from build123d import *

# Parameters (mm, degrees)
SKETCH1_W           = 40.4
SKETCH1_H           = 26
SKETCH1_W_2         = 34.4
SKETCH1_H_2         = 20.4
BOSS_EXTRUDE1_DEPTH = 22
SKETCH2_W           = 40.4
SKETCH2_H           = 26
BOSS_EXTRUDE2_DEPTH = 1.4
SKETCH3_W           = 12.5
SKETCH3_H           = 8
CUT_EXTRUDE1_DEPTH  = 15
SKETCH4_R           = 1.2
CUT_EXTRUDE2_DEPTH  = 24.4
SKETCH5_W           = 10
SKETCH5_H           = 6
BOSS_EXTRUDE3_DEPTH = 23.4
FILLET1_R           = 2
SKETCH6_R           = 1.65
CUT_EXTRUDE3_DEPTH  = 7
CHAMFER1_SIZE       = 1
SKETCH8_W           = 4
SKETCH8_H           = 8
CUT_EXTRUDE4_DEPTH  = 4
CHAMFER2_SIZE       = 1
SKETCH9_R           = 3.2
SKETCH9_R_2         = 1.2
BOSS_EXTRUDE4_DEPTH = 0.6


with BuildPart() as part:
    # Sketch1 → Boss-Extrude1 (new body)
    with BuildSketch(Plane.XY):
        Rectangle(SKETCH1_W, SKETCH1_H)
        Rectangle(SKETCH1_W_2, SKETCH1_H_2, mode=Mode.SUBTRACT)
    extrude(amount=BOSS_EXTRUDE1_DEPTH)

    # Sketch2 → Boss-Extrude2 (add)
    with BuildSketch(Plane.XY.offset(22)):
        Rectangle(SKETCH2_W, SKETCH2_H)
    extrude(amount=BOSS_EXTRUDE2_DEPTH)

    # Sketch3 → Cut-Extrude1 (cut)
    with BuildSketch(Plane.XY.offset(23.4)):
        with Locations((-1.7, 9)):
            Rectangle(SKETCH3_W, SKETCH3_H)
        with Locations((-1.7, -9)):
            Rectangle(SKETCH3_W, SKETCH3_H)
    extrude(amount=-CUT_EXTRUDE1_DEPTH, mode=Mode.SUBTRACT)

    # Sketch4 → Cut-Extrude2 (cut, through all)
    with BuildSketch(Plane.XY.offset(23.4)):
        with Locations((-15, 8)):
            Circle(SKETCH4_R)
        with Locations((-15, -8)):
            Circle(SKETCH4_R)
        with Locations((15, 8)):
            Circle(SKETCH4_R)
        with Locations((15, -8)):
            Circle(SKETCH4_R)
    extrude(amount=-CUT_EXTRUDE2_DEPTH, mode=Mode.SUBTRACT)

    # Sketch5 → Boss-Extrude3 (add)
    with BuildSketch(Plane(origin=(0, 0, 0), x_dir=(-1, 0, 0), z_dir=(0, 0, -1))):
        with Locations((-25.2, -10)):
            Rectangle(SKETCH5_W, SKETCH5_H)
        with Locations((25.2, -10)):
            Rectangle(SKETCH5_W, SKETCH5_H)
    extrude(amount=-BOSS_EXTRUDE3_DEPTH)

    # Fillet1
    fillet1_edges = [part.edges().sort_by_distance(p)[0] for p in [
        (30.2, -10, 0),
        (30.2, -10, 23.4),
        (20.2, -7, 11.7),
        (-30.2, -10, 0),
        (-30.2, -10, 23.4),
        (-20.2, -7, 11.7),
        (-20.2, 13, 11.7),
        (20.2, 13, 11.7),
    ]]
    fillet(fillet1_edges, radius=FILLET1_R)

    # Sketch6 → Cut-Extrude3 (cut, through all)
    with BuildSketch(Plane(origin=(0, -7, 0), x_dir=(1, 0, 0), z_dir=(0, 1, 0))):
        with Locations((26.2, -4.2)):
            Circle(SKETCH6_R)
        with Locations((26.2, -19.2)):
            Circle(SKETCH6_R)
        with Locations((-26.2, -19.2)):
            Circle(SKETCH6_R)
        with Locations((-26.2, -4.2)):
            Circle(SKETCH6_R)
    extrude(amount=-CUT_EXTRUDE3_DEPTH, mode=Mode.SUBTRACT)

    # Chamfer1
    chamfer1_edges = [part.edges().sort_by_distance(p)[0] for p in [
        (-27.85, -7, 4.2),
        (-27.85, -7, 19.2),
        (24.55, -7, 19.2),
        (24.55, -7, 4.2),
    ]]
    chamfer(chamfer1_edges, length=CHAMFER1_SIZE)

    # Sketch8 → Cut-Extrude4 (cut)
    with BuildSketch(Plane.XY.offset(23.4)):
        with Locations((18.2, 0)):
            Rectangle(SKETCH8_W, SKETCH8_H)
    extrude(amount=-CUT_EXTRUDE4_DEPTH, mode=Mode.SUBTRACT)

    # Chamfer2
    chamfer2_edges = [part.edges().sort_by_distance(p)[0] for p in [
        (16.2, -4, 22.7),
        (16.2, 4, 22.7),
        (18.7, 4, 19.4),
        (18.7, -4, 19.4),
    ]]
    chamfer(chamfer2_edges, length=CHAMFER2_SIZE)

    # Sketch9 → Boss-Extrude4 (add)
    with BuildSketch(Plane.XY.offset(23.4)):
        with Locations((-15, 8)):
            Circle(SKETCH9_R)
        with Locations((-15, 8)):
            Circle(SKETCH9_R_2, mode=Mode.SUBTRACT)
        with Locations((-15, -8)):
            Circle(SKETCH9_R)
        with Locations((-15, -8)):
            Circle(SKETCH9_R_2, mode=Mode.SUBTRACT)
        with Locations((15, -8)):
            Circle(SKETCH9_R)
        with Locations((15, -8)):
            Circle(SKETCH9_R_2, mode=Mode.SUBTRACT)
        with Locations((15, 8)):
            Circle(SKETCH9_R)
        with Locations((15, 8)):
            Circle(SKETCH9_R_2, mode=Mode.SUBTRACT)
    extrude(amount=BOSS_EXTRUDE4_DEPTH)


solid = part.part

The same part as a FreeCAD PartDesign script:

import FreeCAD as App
import Part
import Sketcher

V = App.Vector


def edges_at(feature, points):
    """Names of the edges that pass closest to the given points."""
    edges = feature.Shape.Edges
    near = lambda p: min(range(len(edges)), key=lambda i: edges[i].distToShape(Part.Vertex(*p))[0])
    return sorted({f"Edge{near(p) + 1}" for p in points})


def add_polygon(sketch, points):
    """Adds a closed chain of lines whose ends are joined by coincident constraints."""
    first, n = sketch.GeometryCount, len(points)
    for a, b in zip(points, points[1:] + points[:1]):
        sketch.addGeometry(Part.LineSegment(App.Vector(*a, 0), App.Vector(*b, 0)), False)
    for i in range(n):
        sketch.addConstraint(Sketcher.Constraint("Coincident", first + i, 2, first + (i + 1) % n, 1))

doc = App.newDocument("Part")
body = doc.addObject("PartDesign::Body", "Body")

sketch1 = doc.addObject("Sketcher::SketchObject", "Sketch")
body.addObject(sketch1)
sketch1.AttachmentSupport = (doc.XY_Plane, [""])
sketch1.MapMode = "FlatFace"
add_polygon(sketch1, [(-20, 13), (-20, -13), (20, -13), (20, 13)])
add_polygon(sketch1, [(17, -10), (-17, -10), (-17, 10), (17, 10)])
sketch1.addConstraint(Sketcher.Constraint("Vertical", 0))
sketch1.addConstraint(Sketcher.Constraint("Horizontal", 1))
sketch1.addConstraint(Sketcher.Constraint("Vertical", 2))
sketch1.addConstraint(Sketcher.Constraint("Horizontal", 3))
sketch1.addConstraint(Sketcher.Constraint("Horizontal", 4))
sketch1.addConstraint(Sketcher.Constraint("Vertical", 5))
sketch1.addConstraint(Sketcher.Constraint("Horizontal", 6))
sketch1.addConstraint(Sketcher.Constraint("Vertical", 7))
sketch1.addConstraint(Sketcher.Constraint("Symmetric", 0, 2, 2, 2, -1, 1))
sketch1.addConstraint(Sketcher.Constraint("Symmetric", 4, 2, 6, 2, -1, 1))
sketch1.addConstraint(Sketcher.Constraint("DistanceY", 0, 2, 0, 1, 26.0))
sketch1.addConstraint(Sketcher.Constraint("DistanceX", 1, 1, 1, 2, 40.4))
sketch1.addConstraint(Sketcher.Constraint("DistanceX", 4, 2, 4, 1, 34.4))
sketch1.addConstraint(Sketcher.Constraint("DistanceY", 5, 1, 5, 2, 20.4))
pad1 = doc.addObject("PartDesign::Pad", "Pad")
body.addObject(pad1)
pad1.Profile = sketch1
pad1.Length = 22

sketch2 = doc.addObject("Sketcher::SketchObject", "Sketch001")
body.addObject(sketch2)
sketch2.AttachmentSupport = (doc.XY_Plane, [""])
sketch2.MapMode = "FlatFace"
sketch2.AttachmentOffset = App.Placement(V(0, 0, 22), App.Rotation())
add_polygon(sketch2, [(-20, 13), (-20, -13), (20, -13), (20, 13)])
sketch2.addConstraint(Sketcher.Constraint("Vertical", 0))
sketch2.addConstraint(Sketcher.Constraint("Horizontal", 1))
sketch2.addConstraint(Sketcher.Constraint("Vertical", 2))
sketch2.addConstraint(Sketcher.Constraint("Horizontal", 3))
sketch2.addConstraint(Sketcher.Constraint("Symmetric", 0, 2, 2, 2, -1, 1))
sketch2.addConstraint(Sketcher.Constraint("DistanceY", 0, 2, 0, 1, 26.0))
sketch2.addConstraint(Sketcher.Constraint("DistanceX", 1, 1, 1, 2, 40.4))
pad2 = doc.addObject("PartDesign::Pad", "Pad001")
body.addObject(pad2)
pad2.Profile = sketch2
pad2.Length = 1.4

sketch3 = doc.addObject("Sketcher::SketchObject", "Sketch002")
body.addObject(sketch3)
sketch3.AttachmentSupport = (doc.XY_Plane, [""])
sketch3.MapMode = "FlatFace"
sketch3.AttachmentOffset = App.Placement(V(0, 0, 23.4), App.Rotation())
add_polygon(sketch3, [(-8, 13), (-8, 5), (5, 5), (5, 13)])
add_polygon(sketch3, [(-8, -5), (-8, -13), (5, -13), (5, -5)])
sketch3.addConstraint(Sketcher.Constraint("Vertical", 0))
sketch3.addConstraint(Sketcher.Constraint("Horizontal", 1))
sketch3.addConstraint(Sketcher.Constraint("Vertical", 2))
sketch3.addConstraint(Sketcher.Constraint("Horizontal", 3))
sketch3.addConstraint(Sketcher.Constraint("Vertical", 4))
sketch3.addConstraint(Sketcher.Constraint("Horizontal", 5))
sketch3.addConstraint(Sketcher.Constraint("Vertical", 6))
sketch3.addConstraint(Sketcher.Constraint("Horizontal", 7))
sketch3.addConstraint(Sketcher.Constraint("Symmetric", 3, 2, 4, 2, -1))
sketch3.addConstraint(Sketcher.Constraint("Symmetric", 1, 2, 6, 2, -1))
sketch3.addConstraint(Sketcher.Constraint("DistanceY", 0, 2, 0, 1, 8.0))
sketch3.addConstraint(Sketcher.Constraint("DistanceX", 1, 1, 1, 2, 12.5))
sketch3.addConstraint(Sketcher.Constraint("DistanceY", -1, 1, 0, 2, 5.0))
sketch3.addConstraint(Sketcher.Constraint("DistanceX", 0, 2, -1, 1, 7.95))
pocket1 = doc.addObject("PartDesign::Pocket", "Pocket")
body.addObject(pocket1)
pocket1.Profile = sketch3
pocket1.Length = 15

sketch4 = doc.addObject("Sketcher::SketchObject", "Sketch003")
body.addObject(sketch4)
sketch4.AttachmentSupport = (doc.XY_Plane, [""])
sketch4.MapMode = "FlatFace"
sketch4.AttachmentOffset = App.Placement(V(0, 0, 23.4), App.Rotation())
sketch4.addGeometry(Part.Circle(V(-15, 8, 0), V(0, 0, 1), 1.2), False)
sketch4.addGeometry(Part.Circle(V(-15, -8, 0), V(0, 0, 1), 1.2), False)
sketch4.addGeometry(Part.Circle(V(15, 8, 0), V(0, 0, 1), 1.2), False)
sketch4.addGeometry(Part.Circle(V(15, -8, 0), V(0, 0, 1), 1.2), False)
sketch4.addConstraint(Sketcher.Constraint("Equal", 0, 1))
sketch4.addConstraint(Sketcher.Constraint("Equal", 1, 2))
sketch4.addConstraint(Sketcher.Constraint("Equal", 2, 3))
sketch4.addConstraint(Sketcher.Constraint("Symmetric", 1, 3, 2, 3, -1, 1))
sketch4.addConstraint(Sketcher.Constraint("Symmetric", 0, 3, 3, 3, -1, 1))
sketch4.addConstraint(Sketcher.Constraint("Symmetric", 0, 3, 2, 3, -2))
sketch4.addConstraint(Sketcher.Constraint("Diameter", 0, 2.4))
sketch4.addConstraint(Sketcher.Constraint("DistanceX", 0, 3, -1, 1, 15.0))
sketch4.addConstraint(Sketcher.Constraint("DistanceY", -1, 1, 0, 3, 8.0))
pocket2 = doc.addObject("PartDesign::Pocket", "Pocket001")
body.addObject(pocket2)
pocket2.Profile = sketch4
pocket2.Type = "ThroughAll"

sketch5 = doc.addObject("Sketcher::SketchObject", "Sketch004")
body.addObject(sketch5)
sketch5.AttachmentSupport = (doc.XY_Plane, [""])
sketch5.MapMode = "FlatFace"
add_polygon(sketch5, [(30, -7), (30, -13), (20, -13), (20, -7)])
add_polygon(sketch5, [(-20, -7), (-20, -13), (-30, -13), (-30, -7)])
sketch5.addConstraint(Sketcher.Constraint("Vertical", 0))
sketch5.addConstraint(Sketcher.Constraint("Horizontal", 1))
sketch5.addConstraint(Sketcher.Constraint("Vertical", 2))
sketch5.addConstraint(Sketcher.Constraint("Horizontal", 3))
sketch5.addConstraint(Sketcher.Constraint("Vertical", 4))
sketch5.addConstraint(Sketcher.Constraint("Horizontal", 5))
sketch5.addConstraint(Sketcher.Constraint("Vertical", 6))
sketch5.addConstraint(Sketcher.Constraint("Horizontal", 7))
sketch5.addConstraint(Sketcher.Constraint("Symmetric", 1, 2, 4, 2, -2))
sketch5.addConstraint(Sketcher.Constraint("Symmetric", 3, 2, 6, 2, -2))
sketch5.addConstraint(Sketcher.Constraint("DistanceX", 1, 2, 1, 1, 10.0))
sketch5.addConstraint(Sketcher.Constraint("DistanceY", 0, 2, 0, 1, 6.0))
sketch5.addConstraint(Sketcher.Constraint("DistanceY", 0, 2, -1, 1, 13.0))
sketch5.addConstraint(Sketcher.Constraint("DistanceX", -1, 1, 0, 2, 30.2))
pad3 = doc.addObject("PartDesign::Pad", "Pad002")
body.addObject(pad3)
pad3.Profile = sketch5
pad3.Length = 23.4
doc.recompute()

fillet = doc.addObject("PartDesign::Fillet", "Fillet")
body.addObject(fillet)
fillet.Base = (pad3, edges_at(pad3, [
    (30.2, -10, 0),
    (30.2, -10, 23.4),
    (20.2, -7, 11.7),
    (-30.2, -10, 0),
    (-30.2, -10, 23.4),
    (-20.2, -7, 11.7),
    (-20.2, 13, 11.7),
    (20.2, 13, 11.7),
]))
fillet.Radius = 2

sketch6 = doc.addObject("Sketcher::SketchObject", "Sketch005")
body.addObject(sketch6)
sketch6.AttachmentSupport = (doc.XZ_Plane, [""])
sketch6.MapMode = "FlatFace"
sketch6.AttachmentOffset = App.Placement(V(0, 0, 7), App.Rotation())
sketch6.addGeometry(Part.Circle(V(26.2, 4.2, 0), V(0, 0, 1), 1.6), False)
sketch6.addGeometry(Part.Circle(V(26.2, 19.2, 0), V(0, 0, 1), 1.6), False)
sketch6.addGeometry(Part.Circle(V(-26.2, 19.2, 0), V(0, 0, 1), 1.6), False)
sketch6.addGeometry(Part.Circle(V(-26.2, 4.2, 0), V(0, 0, 1), 1.6), False)
sketch6.addConstraint(Sketcher.Constraint("Equal", 0, 1))
sketch6.addConstraint(Sketcher.Constraint("Equal", 1, 2))
sketch6.addConstraint(Sketcher.Constraint("Equal", 2, 3))
sketch6.addConstraint(Sketcher.Constraint("Symmetric", 1, 3, 2, 3, -2))
sketch6.addConstraint(Sketcher.Constraint("Symmetric", 0, 3, 3, 3, -2))
sketch6.addConstraint(Sketcher.Constraint("Vertical", 0, 3, 1, 3))
sketch6.addConstraint(Sketcher.Constraint("Diameter", 0, 3.3))
sketch6.addConstraint(Sketcher.Constraint("DistanceY", 0, 3, 1, 3, 15.0))
sketch6.addConstraint(Sketcher.Constraint("DistanceX", -1, 1, 0, 3, 26.2))
sketch6.addConstraint(Sketcher.Constraint("DistanceY", -1, 1, 0, 3, 4.2))
pocket3 = doc.addObject("PartDesign::Pocket", "Pocket002")
body.addObject(pocket3)
pocket3.Profile = sketch6
pocket3.Type = "ThroughAll"
pocket3.Reversed = True
doc.recompute()

chamfer = doc.addObject("PartDesign::Chamfer", "Chamfer")
body.addObject(chamfer)
chamfer.Base = (pocket3, edges_at(pocket3, [
    (-27.85, -7, 4.2),
    (-27.85, -7, 19.2),
    (24.55, -7, 19.2),
    (24.55, -7, 4.2),
]))
chamfer.Size = 1

sketch7 = doc.addObject("Sketcher::SketchObject", "Sketch006")
body.addObject(sketch7)
sketch7.AttachmentSupport = (doc.XY_Plane, [""])
sketch7.MapMode = "FlatFace"
sketch7.AttachmentOffset = App.Placement(V(0, 0, 23.4), App.Rotation())
add_polygon(sketch7, [(16.2, 4), (16.2, -4), (20.2, -4), (20.2, 4)])
sketch7.addConstraint(Sketcher.Constraint("Vertical", 0))
sketch7.addConstraint(Sketcher.Constraint("Horizontal", 1))
sketch7.addConstraint(Sketcher.Constraint("Vertical", 2))
sketch7.addConstraint(Sketcher.Constraint("Horizontal", 3))
sketch7.addConstraint(Sketcher.Constraint("DistanceX", 1, 1, 1, 2, 4.0))
sketch7.addConstraint(Sketcher.Constraint("DistanceY", 0, 2, 0, 1, 8.0))
sketch7.addConstraint(Sketcher.Constraint("DistanceY", 0, 2, -1, 1, 4.0))
sketch7.addConstraint(Sketcher.Constraint("DistanceX", -1, 1, 0, 2, 16.2))
pocket4 = doc.addObject("PartDesign::Pocket", "Pocket003")
body.addObject(pocket4)
pocket4.Profile = sketch7
pocket4.Length = 4
doc.recompute()

chamfer2 = doc.addObject("PartDesign::Chamfer", "Chamfer001")
body.addObject(chamfer2)
chamfer2.Base = (pocket4, edges_at(pocket4, [
    (16.2, -4, 22.7),
    (16.2, 4, 22.7),
    (18.7, 4, 19.4),
    (18.7, -4, 19.4),
]))
chamfer2.Size = 1

sketch8 = doc.addObject("Sketcher::SketchObject", "Sketch007")
body.addObject(sketch8)
sketch8.AttachmentSupport = (doc.XY_Plane, [""])
sketch8.MapMode = "FlatFace"
sketch8.AttachmentOffset = App.Placement(V(0, 0, 23.4), App.Rotation())
sketch8.addGeometry(Part.Circle(V(-15, 8, 0), V(0, 0, 1), 3.2), False)
sketch8.addGeometry(Part.Circle(V(-15, 8, 0), V(0, 0, 1), 1.2), False)
sketch8.addGeometry(Part.Circle(V(-15, -8, 0), V(0, 0, 1), 3.2), False)
sketch8.addGeometry(Part.Circle(V(-15, -8, 0), V(0, 0, 1), 1.2), False)
sketch8.addGeometry(Part.Circle(V(15, -8, 0), V(0, 0, 1), 3.2), False)
sketch8.addGeometry(Part.Circle(V(15, -8, 0), V(0, 0, 1), 1.2), False)
sketch8.addGeometry(Part.Circle(V(15, 8, 0), V(0, 0, 1), 3.2), False)
sketch8.addGeometry(Part.Circle(V(15, 8, 0), V(0, 0, 1), 1.2), False)
sketch8.addConstraint(Sketcher.Constraint("Coincident", 1, 3, 0, 3))
sketch8.addConstraint(Sketcher.Constraint("Coincident", 3, 3, 2, 3))
sketch8.addConstraint(Sketcher.Constraint("Coincident", 5, 3, 4, 3))
sketch8.addConstraint(Sketcher.Constraint("Coincident", 7, 3, 6, 3))
sketch8.addConstraint(Sketcher.Constraint("Equal", 0, 2))
sketch8.addConstraint(Sketcher.Constraint("Equal", 1, 3))
sketch8.addConstraint(Sketcher.Constraint("Equal", 2, 4))
sketch8.addConstraint(Sketcher.Constraint("Equal", 3, 5))
sketch8.addConstraint(Sketcher.Constraint("Equal", 4, 6))
sketch8.addConstraint(Sketcher.Constraint("Equal", 5, 7))
sketch8.addConstraint(Sketcher.Constraint("Symmetric", 0, 3, 4, 3, -1, 1))
sketch8.addConstraint(Sketcher.Constraint("Symmetric", 2, 3, 6, 3, -1, 1))
sketch8.addConstraint(Sketcher.Constraint("Symmetric", 2, 3, 4, 3, -2))
sketch8.addConstraint(Sketcher.Constraint("Diameter", 0, 6.4))
sketch8.addConstraint(Sketcher.Constraint("Diameter", 1, 2.4))
sketch8.addConstraint(Sketcher.Constraint("DistanceX", 0, 3, -1, 1, 15.0))
sketch8.addConstraint(Sketcher.Constraint("DistanceY", -1, 1, 0, 3, 8.0))
pad4 = doc.addObject("PartDesign::Pad", "Pad003")
body.addObject(pad4)
pad4.Profile = sketch8
pad4.Length = 0.6

doc.recompute()
